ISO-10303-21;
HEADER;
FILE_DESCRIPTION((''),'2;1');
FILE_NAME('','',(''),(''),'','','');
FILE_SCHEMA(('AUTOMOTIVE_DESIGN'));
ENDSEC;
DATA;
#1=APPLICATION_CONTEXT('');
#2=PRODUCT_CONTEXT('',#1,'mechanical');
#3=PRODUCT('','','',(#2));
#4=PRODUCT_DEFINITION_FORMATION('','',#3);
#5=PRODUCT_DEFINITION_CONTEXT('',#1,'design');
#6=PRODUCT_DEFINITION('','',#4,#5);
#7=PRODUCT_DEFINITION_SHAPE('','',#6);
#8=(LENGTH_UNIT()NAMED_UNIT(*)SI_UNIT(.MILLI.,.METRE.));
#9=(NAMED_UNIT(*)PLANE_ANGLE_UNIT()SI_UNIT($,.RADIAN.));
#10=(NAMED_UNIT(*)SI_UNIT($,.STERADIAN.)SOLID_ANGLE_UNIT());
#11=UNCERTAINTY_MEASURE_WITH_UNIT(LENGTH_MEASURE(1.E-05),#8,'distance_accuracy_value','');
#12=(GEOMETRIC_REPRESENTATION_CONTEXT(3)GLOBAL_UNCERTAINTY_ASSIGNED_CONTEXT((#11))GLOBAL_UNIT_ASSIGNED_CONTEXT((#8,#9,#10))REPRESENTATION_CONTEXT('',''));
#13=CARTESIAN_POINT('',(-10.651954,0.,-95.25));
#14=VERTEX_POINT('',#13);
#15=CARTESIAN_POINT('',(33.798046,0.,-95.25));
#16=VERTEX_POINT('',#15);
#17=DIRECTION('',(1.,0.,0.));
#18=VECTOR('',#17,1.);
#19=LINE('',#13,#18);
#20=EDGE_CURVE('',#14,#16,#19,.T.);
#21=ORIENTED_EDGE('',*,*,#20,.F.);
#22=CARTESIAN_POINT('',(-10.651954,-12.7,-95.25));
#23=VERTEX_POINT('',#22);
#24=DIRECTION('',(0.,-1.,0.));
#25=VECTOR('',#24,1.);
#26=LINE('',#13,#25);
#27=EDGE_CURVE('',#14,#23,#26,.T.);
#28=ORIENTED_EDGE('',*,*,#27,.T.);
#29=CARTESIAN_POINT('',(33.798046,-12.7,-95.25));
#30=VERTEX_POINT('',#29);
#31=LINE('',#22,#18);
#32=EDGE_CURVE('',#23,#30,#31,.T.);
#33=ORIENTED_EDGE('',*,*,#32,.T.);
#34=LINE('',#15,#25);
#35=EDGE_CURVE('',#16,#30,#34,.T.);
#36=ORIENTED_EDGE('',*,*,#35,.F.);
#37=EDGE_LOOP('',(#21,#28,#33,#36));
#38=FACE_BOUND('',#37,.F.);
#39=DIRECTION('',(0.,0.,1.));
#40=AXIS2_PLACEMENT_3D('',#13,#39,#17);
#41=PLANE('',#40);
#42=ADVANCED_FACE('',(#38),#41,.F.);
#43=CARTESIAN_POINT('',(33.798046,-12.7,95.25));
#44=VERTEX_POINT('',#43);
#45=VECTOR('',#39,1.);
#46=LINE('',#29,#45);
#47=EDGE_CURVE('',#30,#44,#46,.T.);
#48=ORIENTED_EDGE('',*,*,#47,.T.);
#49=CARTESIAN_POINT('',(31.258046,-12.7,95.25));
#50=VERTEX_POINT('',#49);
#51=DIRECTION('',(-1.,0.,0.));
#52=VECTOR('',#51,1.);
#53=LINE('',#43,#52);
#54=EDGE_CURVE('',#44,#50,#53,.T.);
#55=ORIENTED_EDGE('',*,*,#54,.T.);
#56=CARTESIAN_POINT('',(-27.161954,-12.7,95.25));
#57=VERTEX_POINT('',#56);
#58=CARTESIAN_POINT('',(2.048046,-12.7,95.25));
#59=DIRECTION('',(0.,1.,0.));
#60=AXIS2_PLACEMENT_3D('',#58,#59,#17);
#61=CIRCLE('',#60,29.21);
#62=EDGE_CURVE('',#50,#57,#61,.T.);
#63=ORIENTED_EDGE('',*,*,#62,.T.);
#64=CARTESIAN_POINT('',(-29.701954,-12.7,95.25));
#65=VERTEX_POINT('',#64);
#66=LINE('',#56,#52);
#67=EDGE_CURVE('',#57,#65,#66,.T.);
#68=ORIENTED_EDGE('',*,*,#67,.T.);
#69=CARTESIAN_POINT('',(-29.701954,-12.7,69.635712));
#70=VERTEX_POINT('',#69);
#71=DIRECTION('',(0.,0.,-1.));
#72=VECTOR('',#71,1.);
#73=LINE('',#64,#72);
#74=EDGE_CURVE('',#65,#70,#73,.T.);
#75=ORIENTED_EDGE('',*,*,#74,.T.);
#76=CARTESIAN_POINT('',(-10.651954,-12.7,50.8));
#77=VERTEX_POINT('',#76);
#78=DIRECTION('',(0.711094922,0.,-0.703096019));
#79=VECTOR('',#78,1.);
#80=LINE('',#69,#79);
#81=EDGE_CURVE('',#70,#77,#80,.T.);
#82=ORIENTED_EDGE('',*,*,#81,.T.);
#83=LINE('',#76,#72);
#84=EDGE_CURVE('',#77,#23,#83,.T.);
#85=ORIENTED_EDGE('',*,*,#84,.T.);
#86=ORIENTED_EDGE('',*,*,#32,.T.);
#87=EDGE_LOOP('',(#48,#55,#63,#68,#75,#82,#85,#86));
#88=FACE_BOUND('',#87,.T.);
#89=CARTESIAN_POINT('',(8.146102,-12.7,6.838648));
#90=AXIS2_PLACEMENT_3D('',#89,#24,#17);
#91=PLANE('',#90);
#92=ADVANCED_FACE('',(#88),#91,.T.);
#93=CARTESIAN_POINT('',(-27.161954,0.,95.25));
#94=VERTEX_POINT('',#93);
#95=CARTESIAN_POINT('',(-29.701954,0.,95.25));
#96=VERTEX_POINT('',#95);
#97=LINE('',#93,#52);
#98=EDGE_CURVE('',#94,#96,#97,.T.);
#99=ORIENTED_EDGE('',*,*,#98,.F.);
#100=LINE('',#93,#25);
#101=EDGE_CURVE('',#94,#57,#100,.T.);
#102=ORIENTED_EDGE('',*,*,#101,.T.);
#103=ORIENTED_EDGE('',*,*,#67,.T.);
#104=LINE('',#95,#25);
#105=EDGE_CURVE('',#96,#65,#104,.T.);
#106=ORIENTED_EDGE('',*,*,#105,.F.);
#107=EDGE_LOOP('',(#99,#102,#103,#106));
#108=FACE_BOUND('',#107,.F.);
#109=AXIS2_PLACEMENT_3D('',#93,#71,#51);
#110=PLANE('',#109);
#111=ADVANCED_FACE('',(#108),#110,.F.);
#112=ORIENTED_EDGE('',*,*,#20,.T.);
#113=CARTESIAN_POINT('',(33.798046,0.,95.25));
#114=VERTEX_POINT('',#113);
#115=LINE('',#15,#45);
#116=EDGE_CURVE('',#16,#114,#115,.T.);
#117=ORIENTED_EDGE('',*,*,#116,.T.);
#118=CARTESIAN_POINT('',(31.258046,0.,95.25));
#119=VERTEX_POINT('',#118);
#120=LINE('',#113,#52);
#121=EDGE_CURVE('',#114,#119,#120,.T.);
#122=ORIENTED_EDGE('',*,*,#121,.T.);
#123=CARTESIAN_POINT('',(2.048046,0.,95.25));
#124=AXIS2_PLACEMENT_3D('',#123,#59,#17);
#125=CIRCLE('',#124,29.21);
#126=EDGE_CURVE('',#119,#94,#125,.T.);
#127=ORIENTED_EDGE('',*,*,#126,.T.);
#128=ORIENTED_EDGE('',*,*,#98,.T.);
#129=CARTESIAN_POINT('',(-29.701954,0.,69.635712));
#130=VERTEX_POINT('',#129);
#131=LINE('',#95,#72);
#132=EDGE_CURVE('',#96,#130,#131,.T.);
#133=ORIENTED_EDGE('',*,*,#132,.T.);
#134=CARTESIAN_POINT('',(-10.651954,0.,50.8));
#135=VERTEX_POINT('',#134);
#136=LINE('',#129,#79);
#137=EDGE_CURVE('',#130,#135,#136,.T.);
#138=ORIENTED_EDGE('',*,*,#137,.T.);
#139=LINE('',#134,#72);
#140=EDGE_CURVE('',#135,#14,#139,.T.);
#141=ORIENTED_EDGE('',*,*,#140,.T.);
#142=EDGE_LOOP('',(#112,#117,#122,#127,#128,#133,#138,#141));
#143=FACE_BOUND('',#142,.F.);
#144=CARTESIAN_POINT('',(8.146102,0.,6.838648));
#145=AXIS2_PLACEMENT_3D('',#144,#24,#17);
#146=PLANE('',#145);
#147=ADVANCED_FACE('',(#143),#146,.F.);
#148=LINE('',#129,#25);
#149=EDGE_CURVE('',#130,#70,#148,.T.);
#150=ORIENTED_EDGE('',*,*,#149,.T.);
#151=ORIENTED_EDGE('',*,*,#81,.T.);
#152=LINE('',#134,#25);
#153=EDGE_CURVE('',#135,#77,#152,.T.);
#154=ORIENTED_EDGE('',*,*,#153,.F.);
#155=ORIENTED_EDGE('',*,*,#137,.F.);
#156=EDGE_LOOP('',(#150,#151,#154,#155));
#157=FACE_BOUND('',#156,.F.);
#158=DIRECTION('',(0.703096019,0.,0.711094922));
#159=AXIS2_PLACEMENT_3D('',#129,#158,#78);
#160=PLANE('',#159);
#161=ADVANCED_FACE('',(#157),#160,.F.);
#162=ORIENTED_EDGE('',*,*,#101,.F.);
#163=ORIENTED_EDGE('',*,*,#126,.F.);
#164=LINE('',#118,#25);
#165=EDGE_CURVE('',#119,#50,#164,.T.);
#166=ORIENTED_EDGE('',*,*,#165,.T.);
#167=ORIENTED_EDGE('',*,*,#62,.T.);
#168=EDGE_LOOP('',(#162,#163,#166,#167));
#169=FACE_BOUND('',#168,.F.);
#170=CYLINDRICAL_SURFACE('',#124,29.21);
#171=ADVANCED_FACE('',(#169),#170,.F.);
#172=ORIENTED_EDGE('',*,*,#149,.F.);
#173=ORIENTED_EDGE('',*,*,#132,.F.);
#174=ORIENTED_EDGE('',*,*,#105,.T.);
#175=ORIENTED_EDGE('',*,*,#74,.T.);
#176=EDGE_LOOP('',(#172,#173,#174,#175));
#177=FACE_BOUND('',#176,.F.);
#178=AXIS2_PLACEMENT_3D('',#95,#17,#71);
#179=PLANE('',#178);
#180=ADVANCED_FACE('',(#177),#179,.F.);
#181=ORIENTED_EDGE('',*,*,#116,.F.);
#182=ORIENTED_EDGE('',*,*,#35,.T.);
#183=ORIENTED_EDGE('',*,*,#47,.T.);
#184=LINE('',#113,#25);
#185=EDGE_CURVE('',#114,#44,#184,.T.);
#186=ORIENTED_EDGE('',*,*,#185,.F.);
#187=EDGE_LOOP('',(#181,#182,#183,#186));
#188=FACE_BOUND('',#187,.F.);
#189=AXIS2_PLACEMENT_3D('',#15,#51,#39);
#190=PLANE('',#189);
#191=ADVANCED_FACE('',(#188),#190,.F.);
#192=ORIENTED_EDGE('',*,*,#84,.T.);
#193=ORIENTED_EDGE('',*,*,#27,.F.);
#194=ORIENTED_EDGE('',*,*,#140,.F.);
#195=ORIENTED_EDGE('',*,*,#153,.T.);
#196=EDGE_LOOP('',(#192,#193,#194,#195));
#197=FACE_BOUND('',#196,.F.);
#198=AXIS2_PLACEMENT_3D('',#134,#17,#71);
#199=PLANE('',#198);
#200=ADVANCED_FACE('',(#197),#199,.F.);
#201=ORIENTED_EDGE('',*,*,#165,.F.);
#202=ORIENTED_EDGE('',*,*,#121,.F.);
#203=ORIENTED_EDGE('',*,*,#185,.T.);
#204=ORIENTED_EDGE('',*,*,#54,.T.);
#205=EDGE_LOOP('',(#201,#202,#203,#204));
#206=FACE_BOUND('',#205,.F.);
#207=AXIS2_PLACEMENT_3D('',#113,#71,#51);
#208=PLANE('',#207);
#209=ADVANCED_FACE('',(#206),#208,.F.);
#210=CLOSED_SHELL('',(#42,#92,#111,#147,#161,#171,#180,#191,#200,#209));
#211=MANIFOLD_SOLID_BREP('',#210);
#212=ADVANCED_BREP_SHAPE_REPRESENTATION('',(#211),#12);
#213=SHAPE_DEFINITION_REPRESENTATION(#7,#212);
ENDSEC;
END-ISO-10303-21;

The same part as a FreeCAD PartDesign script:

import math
import FreeCAD as App
import Part
import Sketcher
Q = App.Units.Quantity

doc = App.newDocument("Part")
params = doc.addObject("Spreadsheet::Sheet", "Params")
for row, (alias, value) in enumerate([
    ("sketch1_radius", "1.15 in"),
    ("sketch1_width", "0.1 in"),
    ("sketch1_height", "7.5 in"),
    ("sketch1_width2", "1.75 in"),
    ("sketch1_height2", "5.75 in"),
    ("pad1_length", "0.5 in"),
], start=1):
    params.set(f"A{row}", alias)
    params.set(f"B{row}", "=" + value)
    params.setAlias(f"B{row}", alias)

body = doc.addObject("PartDesign::Body", "Body")

# Sketch on XZ plane
sketch1 = body.newObject("Sketcher::SketchObject", "Sketch")
sketch1.AttachmentSupport = (doc.getObject("XZ_Plane"), [""])
sketch1.MapMode = "FlatFace"
sketch1.addGeometry([
    Part.ArcOfCircle(Part.Circle(App.Vector(2, 95.2, 0), App.Vector(0, 0, 1), 29.2), math.radians(180), math.radians(360)),  # 0
    Part.LineSegment(App.Vector(-27.2, 95.2, 0), App.Vector(-29.7, 95.2, 0)),  # 1
    Part.LineSegment(App.Vector(-29.7, 95.2, 0), App.Vector(-29.7, 69.6, 0)),  # 2
    Part.LineSegment(App.Vector(-29.7, 69.6, 0), App.Vector(-10.7, 50.8, 0)),  # 3
    Part.LineSegment(App.Vector(-10.7, 50.8, 0), App.Vector(-10.7, -95.2, 0)),  # 4
    Part.LineSegment(App.Vector(-10.7, -95.2, 0), App.Vector(33.8, -95.2, 0)),  # 5
    Part.LineSegment(App.Vector(33.8, -95.2, 0), App.Vector(33.8, 95.2, 0)),  # 6
    Part.LineSegment(App.Vector(33.8, 95.2, 0), App.Vector(31.3, 95.2, 0)),  # 7
], False)
sketch1.addConstraint([
    Sketcher.Constraint("Coincident", 0, 1, 1, 1),
    Sketcher.Constraint("Coincident", 1, 2, 2, 1),
    Sketcher.Constraint("Coincident", 2, 2, 3, 1),
    Sketcher.Constraint("Coincident", 3, 2, 4, 1),
    Sketcher.Constraint("Coincident", 4, 2, 5, 1),
    Sketcher.Constraint("Coincident", 5, 2, 6, 1),
    Sketcher.Constraint("Coincident", 6, 2, 7, 1),
    Sketcher.Constraint("Coincident", 7, 2, 0, 2),
    Sketcher.Constraint("Horizontal", 1),
    Sketcher.Constraint("Vertical", 2),
    Sketcher.Constraint("Vertical", 4),
    Sketcher.Constraint("Horizontal", 5),
    Sketcher.Constraint("Vertical", 6),
    Sketcher.Constraint("Horizontal", 7),
    Sketcher.Constraint("Horizontal", 1, 2, 6, 2),
    Sketcher.Constraint("Equal", 1, 7),
    Sketcher.Constraint("Radius", 0, Q("1.15 in")),
    Sketcher.Constraint("DistanceX", 1, 2, 1, 1, Q("0.1 in")),
    Sketcher.Constraint("DistanceY", 6, 1, 6, 2, Q("7.5 in")),
    Sketcher.Constraint("DistanceY", -1, 1, 3, 2, Q("2 in")),
    Sketcher.Constraint("DistanceX", 5, 1, 5, 2, Q("1.75 in")),
    Sketcher.Constraint("DistanceY", 4, 2, 4, 1, Q("5.75 in")),
    Sketcher.Constraint("DistanceY", 4, 2, 0, 3, Q("7.5 in")),
    Sketcher.Constraint("DistanceY", 2, 2, 2, 1, 25.614288),
    Sketcher.Constraint("DistanceX", -1, 1, 0, 3, 2.048046),
])
sketch1.setExpression("Constraints[16]", "Params.sketch1_radius")
sketch1.setExpression("Constraints[17]", "Params.sketch1_width")
sketch1.setExpression("Constraints[18]", "Params.sketch1_height")
sketch1.setExpression("Constraints[20]", "Params.sketch1_width2")
sketch1.setExpression("Constraints[21]", "Params.sketch1_height2")
pad1 = body.newObject("PartDesign::Pad", "Pad")
pad1.Profile = sketch1
pad1.setExpression("Length", "Params.pad1_length")

doc.recompute()
